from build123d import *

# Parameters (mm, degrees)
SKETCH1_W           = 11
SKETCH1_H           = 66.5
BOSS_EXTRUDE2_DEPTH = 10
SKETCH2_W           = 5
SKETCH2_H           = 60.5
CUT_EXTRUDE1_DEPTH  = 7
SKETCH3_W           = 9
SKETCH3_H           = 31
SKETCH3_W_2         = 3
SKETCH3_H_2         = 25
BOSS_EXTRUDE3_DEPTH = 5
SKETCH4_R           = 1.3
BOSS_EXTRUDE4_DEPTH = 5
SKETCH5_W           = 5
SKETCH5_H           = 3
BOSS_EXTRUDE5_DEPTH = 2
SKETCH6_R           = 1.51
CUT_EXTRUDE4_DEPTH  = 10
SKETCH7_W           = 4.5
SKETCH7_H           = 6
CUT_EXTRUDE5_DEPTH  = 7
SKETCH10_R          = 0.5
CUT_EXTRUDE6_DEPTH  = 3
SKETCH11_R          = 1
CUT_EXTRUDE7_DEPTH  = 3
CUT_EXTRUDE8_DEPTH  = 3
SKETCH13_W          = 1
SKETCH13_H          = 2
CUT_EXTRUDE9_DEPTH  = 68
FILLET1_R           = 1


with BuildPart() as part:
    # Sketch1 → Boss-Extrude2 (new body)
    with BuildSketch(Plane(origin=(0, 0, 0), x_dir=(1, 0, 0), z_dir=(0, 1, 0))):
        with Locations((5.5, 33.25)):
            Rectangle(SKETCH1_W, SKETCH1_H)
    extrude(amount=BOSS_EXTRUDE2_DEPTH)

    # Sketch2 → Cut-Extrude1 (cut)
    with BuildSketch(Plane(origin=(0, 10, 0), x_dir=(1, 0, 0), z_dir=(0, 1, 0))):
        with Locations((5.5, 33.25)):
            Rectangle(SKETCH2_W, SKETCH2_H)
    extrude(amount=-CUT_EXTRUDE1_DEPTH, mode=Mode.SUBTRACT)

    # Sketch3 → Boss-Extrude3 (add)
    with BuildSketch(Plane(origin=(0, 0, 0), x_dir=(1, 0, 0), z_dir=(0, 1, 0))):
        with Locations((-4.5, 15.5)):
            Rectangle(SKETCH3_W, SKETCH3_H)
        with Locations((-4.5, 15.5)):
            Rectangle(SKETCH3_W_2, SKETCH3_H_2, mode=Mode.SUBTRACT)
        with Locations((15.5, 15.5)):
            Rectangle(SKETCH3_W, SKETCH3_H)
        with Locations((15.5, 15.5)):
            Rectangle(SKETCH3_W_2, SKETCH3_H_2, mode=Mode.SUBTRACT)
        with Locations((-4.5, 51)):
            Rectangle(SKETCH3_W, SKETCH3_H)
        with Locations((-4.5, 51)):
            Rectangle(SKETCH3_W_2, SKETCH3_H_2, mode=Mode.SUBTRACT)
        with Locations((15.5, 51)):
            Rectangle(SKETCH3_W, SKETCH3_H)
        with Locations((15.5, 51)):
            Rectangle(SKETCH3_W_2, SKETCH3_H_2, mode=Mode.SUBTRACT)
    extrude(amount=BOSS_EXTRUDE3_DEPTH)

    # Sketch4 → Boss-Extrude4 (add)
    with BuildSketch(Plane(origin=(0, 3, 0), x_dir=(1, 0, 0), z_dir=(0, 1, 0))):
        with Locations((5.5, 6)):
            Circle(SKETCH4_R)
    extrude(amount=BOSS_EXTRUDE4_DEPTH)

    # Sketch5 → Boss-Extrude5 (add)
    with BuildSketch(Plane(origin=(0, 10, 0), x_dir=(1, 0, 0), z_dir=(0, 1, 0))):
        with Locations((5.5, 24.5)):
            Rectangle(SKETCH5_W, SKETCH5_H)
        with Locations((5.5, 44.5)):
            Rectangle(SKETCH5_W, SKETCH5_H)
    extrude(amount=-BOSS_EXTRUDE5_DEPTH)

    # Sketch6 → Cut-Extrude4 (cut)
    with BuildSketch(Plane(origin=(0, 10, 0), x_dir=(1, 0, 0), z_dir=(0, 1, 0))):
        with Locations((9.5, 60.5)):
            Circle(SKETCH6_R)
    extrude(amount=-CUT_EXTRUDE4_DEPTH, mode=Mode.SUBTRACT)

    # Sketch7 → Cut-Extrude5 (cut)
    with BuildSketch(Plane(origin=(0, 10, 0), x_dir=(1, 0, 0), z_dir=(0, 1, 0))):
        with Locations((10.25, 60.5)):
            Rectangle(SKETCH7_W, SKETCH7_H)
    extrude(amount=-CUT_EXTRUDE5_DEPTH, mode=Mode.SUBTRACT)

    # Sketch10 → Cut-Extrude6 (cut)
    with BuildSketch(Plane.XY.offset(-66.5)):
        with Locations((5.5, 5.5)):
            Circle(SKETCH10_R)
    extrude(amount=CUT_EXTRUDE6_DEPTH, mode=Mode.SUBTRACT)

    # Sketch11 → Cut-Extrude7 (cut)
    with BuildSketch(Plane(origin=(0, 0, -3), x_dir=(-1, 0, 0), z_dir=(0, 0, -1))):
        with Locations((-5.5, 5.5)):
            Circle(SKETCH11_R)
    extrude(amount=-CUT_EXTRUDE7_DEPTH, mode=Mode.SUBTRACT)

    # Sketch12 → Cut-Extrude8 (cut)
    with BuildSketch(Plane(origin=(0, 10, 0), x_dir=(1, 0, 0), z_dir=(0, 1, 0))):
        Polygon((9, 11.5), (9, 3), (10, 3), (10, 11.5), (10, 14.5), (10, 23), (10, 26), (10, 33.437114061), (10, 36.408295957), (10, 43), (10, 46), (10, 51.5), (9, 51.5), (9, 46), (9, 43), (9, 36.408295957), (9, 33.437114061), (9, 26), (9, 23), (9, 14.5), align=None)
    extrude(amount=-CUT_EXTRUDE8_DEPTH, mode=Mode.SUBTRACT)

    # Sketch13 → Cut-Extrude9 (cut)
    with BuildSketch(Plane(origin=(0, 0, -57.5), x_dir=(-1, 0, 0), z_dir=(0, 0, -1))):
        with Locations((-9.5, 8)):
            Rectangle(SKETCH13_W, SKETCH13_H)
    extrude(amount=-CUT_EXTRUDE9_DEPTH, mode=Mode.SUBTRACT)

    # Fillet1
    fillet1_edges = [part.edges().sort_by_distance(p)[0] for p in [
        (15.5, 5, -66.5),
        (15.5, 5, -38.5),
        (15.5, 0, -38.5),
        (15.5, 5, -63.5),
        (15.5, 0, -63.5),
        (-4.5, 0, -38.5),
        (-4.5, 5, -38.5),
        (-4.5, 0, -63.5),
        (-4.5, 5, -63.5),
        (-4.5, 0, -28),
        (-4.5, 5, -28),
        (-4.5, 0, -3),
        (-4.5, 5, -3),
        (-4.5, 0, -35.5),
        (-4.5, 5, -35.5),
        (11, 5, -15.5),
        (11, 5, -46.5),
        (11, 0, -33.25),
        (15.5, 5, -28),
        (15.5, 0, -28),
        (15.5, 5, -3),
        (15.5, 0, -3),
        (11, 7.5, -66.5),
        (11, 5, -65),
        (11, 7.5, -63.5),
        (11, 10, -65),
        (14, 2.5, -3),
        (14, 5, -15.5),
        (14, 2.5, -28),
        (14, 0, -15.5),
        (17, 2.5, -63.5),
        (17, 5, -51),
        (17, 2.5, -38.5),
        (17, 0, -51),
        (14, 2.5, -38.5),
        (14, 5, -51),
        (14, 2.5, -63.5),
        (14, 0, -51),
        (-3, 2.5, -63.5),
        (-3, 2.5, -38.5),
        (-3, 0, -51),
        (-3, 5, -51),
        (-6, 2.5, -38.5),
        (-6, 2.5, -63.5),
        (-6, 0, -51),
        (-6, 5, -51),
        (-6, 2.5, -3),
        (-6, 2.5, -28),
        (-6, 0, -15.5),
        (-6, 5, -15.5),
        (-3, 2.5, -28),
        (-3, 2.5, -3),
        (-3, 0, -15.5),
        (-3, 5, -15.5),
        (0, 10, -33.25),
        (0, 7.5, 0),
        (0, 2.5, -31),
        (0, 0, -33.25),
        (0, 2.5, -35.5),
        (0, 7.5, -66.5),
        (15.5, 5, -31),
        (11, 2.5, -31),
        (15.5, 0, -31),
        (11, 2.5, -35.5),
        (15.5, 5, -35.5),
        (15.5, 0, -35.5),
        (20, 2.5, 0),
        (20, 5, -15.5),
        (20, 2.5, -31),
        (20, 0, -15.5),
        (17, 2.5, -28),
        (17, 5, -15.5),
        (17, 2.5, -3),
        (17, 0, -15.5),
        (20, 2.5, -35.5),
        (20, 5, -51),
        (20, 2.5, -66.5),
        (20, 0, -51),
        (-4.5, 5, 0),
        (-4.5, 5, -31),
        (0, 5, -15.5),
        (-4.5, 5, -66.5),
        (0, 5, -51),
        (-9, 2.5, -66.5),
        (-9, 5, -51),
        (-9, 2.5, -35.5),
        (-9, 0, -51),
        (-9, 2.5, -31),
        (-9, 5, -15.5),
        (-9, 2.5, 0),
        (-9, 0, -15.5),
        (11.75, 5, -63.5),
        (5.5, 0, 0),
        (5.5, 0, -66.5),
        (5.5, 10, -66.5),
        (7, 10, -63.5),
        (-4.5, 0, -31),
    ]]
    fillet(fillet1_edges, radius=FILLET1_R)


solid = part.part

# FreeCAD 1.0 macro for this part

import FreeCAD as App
import Part
import Sketcher

V = App.Vector


def edges_at(feature, points):
    """Names of the edges that pass closest to the given points."""
    edges = feature.Shape.Edges
    near = lambda p: min(range(len(edges)), key=lambda i: edges[i].distToShape(Part.Vertex(*p))[0])
    return sorted({f"Edge{near(p) + 1}" for p in points})

doc = App.newDocument("Part")
body = doc.addObject("PartDesign::Body", "Body")

# Sketch on XZ plane
sketch1 = doc.addObject("Sketcher::SketchObject", "Sketch")
body.addObject(sketch1)
sketch1.AttachmentSupport = (doc.XZ_Plane, [""])
sketch1.MapMode = "FlatFace"
sketch1.addGeometry([
    Part.LineSegment(V(0, -66, 0), V(0, 0, 0)),
    Part.LineSegment(V(0, 0, 0), V(11, 0, 0)),
    Part.LineSegment(V(11, 0, 0), V(11, -66, 0)),
    Part.LineSegment(V(11, -66, 0), V(0, -66, 0)),
], False)
sketch1.addConstraint([
    Sketcher.Constraint("Coincident", 0, 2, 1, 1),
    Sketcher.Constraint("Coincident", 1, 2, 2, 1),
    Sketcher.Constraint("Coincident", 2, 2, 3, 1),
    Sketcher.Constraint("Coincident", 3, 2, 0, 1),
    Sketcher.Constraint("Vertical", 0),
    Sketcher.Constraint("Horizontal", 1),
    Sketcher.Constraint("Vertical", 2),
    Sketcher.Constraint("Horizontal", 3),
    Sketcher.Constraint("Coincident", 0, 2, -1, 1),
    Sketcher.Constraint("DistanceX", 1, 1, 1, 2, 11.0),
    Sketcher.Constraint("DistanceY", 0, 1, 0, 2, 66.5),
])
pad1 = doc.addObject("PartDesign::Pad", "Pad")
body.addObject(pad1)
pad1.Profile = sketch1
pad1.Length = 10
pad1.Reversed = True

# Sketch on XZ plane
sketch2 = doc.addObject("Sketcher::SketchObject", "Sketch001")
body.addObject(sketch2)
sketch2.AttachmentSupport = (doc.XZ_Plane, [""])
sketch2.MapMode = "FlatFace"
sketch2.AttachmentOffset = App.Placement(V(0, 0, -10), App.Rotation())
sketch2.addGeometry([
    Part.LineSegment(V(3, -64, 0), V(3, -3, 0)),
    Part.LineSegment(V(3, -3, 0), V(8, -3, 0)),
    Part.LineSegment(V(8, -3, 0), V(8, -64, 0)),
    Part.LineSegment(V(8, -64, 0), V(3, -64, 0)),
], False)
sketch2.addConstraint([
    Sketcher.Constraint("Coincident", 0, 2, 1, 1),
    Sketcher.Constraint("Coincident", 1, 2, 2, 1),
    Sketcher.Constraint("Coincident", 2, 2, 3, 1),
    Sketcher.Constraint("Coincident", 3, 2, 0, 1),
    Sketcher.Constraint("Vertical", 0),
    Sketcher.Constraint("Horizontal", 1),
    Sketcher.Constraint("Vertical", 2),
    Sketcher.Constraint("Horizontal", 3),
    Sketcher.Constraint("DistanceX", 1, 1, 1, 2, 5.0),
    Sketcher.Constraint("DistanceY", 0, 1, 0, 2, 60.5),
    Sketcher.Constraint("DistanceX", -1, 1, 0, 2, 3.0),
    Sketcher.Constraint("DistanceY", 0, 2, -1, 1, 3.0),
])
pocket1 = doc.addObject("PartDesign::Pocket", "Pocket")
body.addObject(pocket1)
pocket1.Profile = sketch2
pocket1.Length = 7
pocket1.Reversed = True

# Sketch on XZ plane
sketch3 = doc.addObject("Sketcher::SketchObject", "Sketch002")
body.addObject(sketch3)
sketch3.AttachmentSupport = (doc.XZ_Plane, [""])
sketch3.MapMode = "FlatFace"
sketch3.addGeometry([
    Part.LineSegment(V(-9, -31, 0), V(-9, 0, 0)),  # 0
    Part.LineSegment(V(-9, 0, 0), V(0, 0, 0)),  # 1
    Part.LineSegment(V(0, 0, 0), V(0, -31, 0)),  # 2
    Part.LineSegment(V(0, -31, 0), V(-9, -31, 0)),  # 3
    Part.LineSegment(V(-3, -3, 0), V(-6, -3, 0)),  # 4
    Part.LineSegment(V(-6, -3, 0), V(-6, -28, 0)),  # 5
    Part.LineSegment(V(-6, -28, 0), V(-3, -28, 0)),  # 6
    Part.LineSegment(V(-3, -28, 0), V(-3, -3, 0)),  # 7
    Part.LineSegment(V(11, -31, 0), V(11, 0, 0)),  # 8
    Part.LineSegment(V(11, 0, 0), V(20, 0, 0)),  # 9
    Part.LineSegment(V(20, 0, 0), V(20, -31, 0)),  # 10
    Part.LineSegment(V(20, -31, 0), V(11, -31, 0)),  # 11
    Part.LineSegment(V(17, -3, 0), V(14, -3, 0)),  # 12
    Part.LineSegment(V(14, -3, 0), V(14, -28, 0)),  # 13
    Part.LineSegment(V(14, -28, 0), V(17, -28, 0)),  # 14
    Part.LineSegment(V(17, -28, 0), V(17, -3, 0)),  # 15
    Part.LineSegment(V(-9, -66.5, 0), V(-9, -35.5, 0)),  # 16
    Part.LineSegment(V(-9, -35.5, 0), V(0, -35.5, 0)),  # 17
    Part.LineSegment(V(0, -35.5, 0), V(0, -66.5, 0)),  # 18
    Part.LineSegment(V(0, -66.5, 0), V(-9, -66.5, 0)),  # 19
    Part.LineSegment(V(-3, -38.5, 0), V(-6, -38.5, 0)),  # 20
    Part.LineSegment(V(-6, -38.5, 0), V(-6, -63.5, 0)),  # 21
    Part.LineSegment(V(-6, -63.5, 0), V(-3, -63.5, 0)),  # 22
    Part.LineSegment(V(-3, -63.5, 0), V(-3, -38.5, 0)),  # 23
    Part.LineSegment(V(11, -66.5, 0), V(11, -35.5, 0)),  # 24
    Part.LineSegment(V(11, -35.5, 0), V(20, -35.5, 0)),  # 25
    Part.LineSegment(V(20, -35.5, 0), V(20, -66.5, 0)),  # 26
    Part.LineSegment(V(20, -66.5, 0), V(11, -66.5, 0)),  # 27
    Part.LineSegment(V(17, -38.5, 0), V(14, -38.5, 0)),  # 28
    Part.LineSegment(V(14, -38.5, 0), V(14, -63.5, 0)),  # 29
    Part.LineSegment(V(14, -63.5, 0), V(17, -63.5, 0)),  # 30
    Part.LineSegment(V(17, -63.5, 0), V(17, -38.5, 0)),  # 31
], False)
sketch3.addConstraint([
    Sketcher.Constraint("Coincident", 0, 2, 1, 1),
    Sketcher.Constraint("Coincident", 1, 2, 2, 1),
    Sketcher.Constraint("Coincident", 2, 2, 3, 1),
    Sketcher.Constraint("Coincident", 3, 2, 0, 1),
    Sketcher.Constraint("Coincident", 4, 2, 5, 1),
    Sketcher.Constraint("Coincident", 5, 2, 6, 1),
    Sketcher.Constraint("Coincident", 6, 2, 7, 1),
    Sketcher.Constraint("Coincident", 7, 2, 4, 1),
    Sketcher.Constraint("Coincident", 8, 2, 9, 1),
    Sketcher.Constraint("Coincident", 9, 2, 10, 1),
    Sketcher.Constraint("Coincident", 10, 2, 11, 1),
    Sketcher.Constraint("Coincident", 11, 2, 8, 1),
    Sketcher.Constraint("Coincident", 12, 2, 13, 1),
    Sketcher.Constraint("Coincident", 13, 2, 14, 1),
    Sketcher.Constraint("Coincident", 14, 2, 15, 1),
    Sketcher.Constraint("Coincident", 15, 2, 12, 1),
    Sketcher.Constraint("Coincident", 16, 2, 17, 1),
    Sketcher.Constraint("Coincident", 17, 2, 18, 1),
    Sketcher.Constraint("Coincident", 18, 2, 19, 1),
    Sketcher.Constraint("Coincident", 19, 2, 16, 1),
    Sketcher.Constraint("Coincident", 20, 2, 21, 1),
    Sketcher.Constraint("Coincident", 21, 2, 22, 1),
    Sketcher.Constraint("Coincident", 22, 2, 23, 1),
    Sketcher.Constraint("Coincident", 23, 2, 20, 1),
    Sketcher.Constraint("Coincident", 24, 2, 25, 1),
    Sketcher.Constraint("Coincident", 25, 2, 26, 1),
    Sketcher.Constraint("Coincident", 26, 2, 27, 1),
    Sketcher.Constraint("Coincident", 27, 2, 24, 1),
    Sketcher.Constraint("Coincident", 28, 2, 29, 1),
    Sketcher.Constraint("Coincident", 29, 2, 30, 1),
    Sketcher.Constraint("Coincident", 30, 2, 31, 1),
    Sketcher.Constraint("Coincident", 31, 2, 28, 1),
    Sketcher.Constraint("Vertical", 0),
    Sketcher.Constraint("Horizontal", 1),
    Sketcher.Constraint("Vertical", 2),
    Sketcher.Constraint("Horizontal", 3),
    Sketcher.Constraint("Horizontal", 4),
    Sketcher.Constraint("Vertical", 5),
    Sketcher.Constraint("Horizontal", 6),
    Sketcher.Constraint("Vertical", 7),
    Sketcher.Constraint("Vertical", 8),
    Sketcher.Constraint("Horizontal", 9),
    Sketcher.Constraint("Vertical", 10),
    Sketcher.Constraint("Horizontal", 11),
    Sketcher.Constraint("Horizontal", 12),
    Sketcher.Constraint("Vertical", 13),
    Sketcher.Constraint("Horizontal", 14),
    Sketcher.Constraint("Vertical", 15),
    Sketcher.Constraint("Vertical", 16),
    Sketcher.Constraint("Horizontal", 17),
    Sketcher.Constraint("Vertical", 18),
    Sketcher.Constraint("Horizontal", 19),
    Sketcher.Constraint("Horizontal", 20),
    Sketcher.Constraint("Vertical", 21),
    Sketcher.Constraint("Horizontal", 22),
    Sketcher.Constraint("Vertical", 23),
    Sketcher.Constraint("Vertical", 24),
    Sketcher.Constraint("Horizontal", 25),
    Sketcher.Constraint("Vertical", 26),
    Sketcher.Constraint("Horizontal", 27),
    Sketcher.Constraint("Horizontal", 28),
    Sketcher.Constraint("Vertical", 29),
    Sketcher.Constraint("Horizontal", 30),
    Sketcher.Constraint("Vertical", 31),
    Sketcher.Constraint("Coincident", 1, 2, -1, 1),
    Sketcher.Constraint("PointOnObject", 8, 2, -1),
    Sketcher.Constraint("PointOnObject", 17, 2, -2),
    Sketcher.Constraint("Horizontal", 3, 2, 10, 2),
    Sketcher.Constraint("Horizontal", 7, 2, 12, 2),
    Sketcher.Constraint("Horizontal", 6, 2, 13, 2),
    Sketcher.Constraint("Horizontal", 17, 2, 24, 2),
    Sketcher.Constraint("Horizontal", 19, 2, 26, 2),
    Sketcher.Constraint("Horizontal", 23, 2, 28, 2),
    Sketcher.Constraint("Horizontal", 22, 2, 29, 2),
    Sketcher.Constraint("Vertical", 3, 2, 16, 2),
    Sketcher.Constraint("Vertical", 5, 2, 20, 2),
    Sketcher.Constraint("Vertical", 7, 2, 22, 2),
    Sketcher.Constraint("Vertical", 11, 2, 24, 2),
    Sketcher.Constraint("Vertical", 10, 2, 25, 2),
    Sketcher.Constraint("Vertical", 13, 2, 28, 2),
    Sketcher.Constraint("Vertical", 15, 2, 30, 2),
    Sketcher.Constraint("Equal", 3, 9),
    Sketcher.Constraint("Equal", 6, 12),
    Sketcher.Constraint("Equal", 10, 16),
    Sketcher.Constraint("Equal", 15, 21),
    Sketcher.Constraint("DistanceX", 1, 1, 1, 2, 9.0),
    Sketcher.Constraint("DistanceX", 4, 2, 4, 1, 3.0),
    Sketcher.Constraint("DistanceY", 0, 1, 0, 2, 31.0),
    Sketcher.Constraint("DistanceY", 5, 2, 5, 1, 25.0),
    Sketcher.Constraint("DistanceX", 4, 2, -1, 1, 6.0),
    Sketcher.Constraint("DistanceY", 4, 2, -1, 1, 3.0),
    Sketcher.Constraint("DistanceX", -1, 1, 8, 2, 11.0),
    Sketcher.Constraint("DistanceX", -1, 1, 12, 2, 14.0),
    Sketcher.Constraint("DistanceY", 20, 2, 16, 2, 3.0),
    Sketcher.Constraint("DistanceY", 16, 2, -1, 1, 35.5),
])
pad2 = doc.addObject("PartDesign::Pad", "Pad001")
body.addObject(pad2)
pad2.Profile = sketch3
pad2.Length = 5
pad2.Reversed = True

# Sketch on XZ plane
sketch4 = doc.addObject("Sketcher::SketchObject", "Sketch003")
body.addObject(sketch4)
sketch4.AttachmentSupport = (doc.XZ_Plane, [""])
sketch4.MapMode = "FlatFace"
sketch4.AttachmentOffset = App.Placement(V(0, 0, -3), App.Rotation())
sketch4.addGeometry(Part.Circle(V(5.5, -6, 0), V(0, 0, 1), 1.3), False)
sketch4.addConstraint([
    Sketcher.Constraint("Diameter", 0, 2.6),
    Sketcher.Constraint("DistanceY", 0, 3, -1, 1, 6.0),
    Sketcher.Constraint("DistanceX", -1, 1, 0, 3, 5.5),
])
pad3 = doc.addObject("PartDesign::Pad", "Pad002")
body.addObject(pad3)
pad3.Profile = sketch4
pad3.Length = 5
pad3.Reversed = True

# Sketch on XZ plane
sketch5 = doc.addObject("Sketcher::SketchObject", "Sketch004")
body.addObject(sketch5)
sketch5.AttachmentSupport = (doc.XZ_Plane, [""])
sketch5.MapMode = "FlatFace"
sketch5.AttachmentOffset = App.Placement(V(0, 0, -10), App.Rotation())
sketch5.addGeometry([
    Part.LineSegment(V(3, -26, 0), V(3, -23, 0)),  # 0
    Part.LineSegment(V(3, -23, 0), V(8, -23, 0)),  # 1
    Part.LineSegment(V(8, -23, 0), V(8, -26, 0)),  # 2
    Part.LineSegment(V(8, -26, 0), V(3, -26, 0)),  # 3
    Part.LineSegment(V(3, -46, 0), V(3, -43, 0)),  # 4
    Part.LineSegment(V(3, -43, 0), V(8, -43, 0)),  # 5
    Part.LineSegment(V(8, -43, 0), V(8, -46, 0)),  # 6
    Part.LineSegment(V(8, -46, 0), V(3, -46, 0)),  # 7
], False)
sketch5.addConstraint([
    Sketcher.Constraint("Coincident", 0, 2, 1, 1),
    Sketcher.Constraint("Coincident", 1, 2, 2, 1),
    Sketcher.Constraint("Coincident", 2, 2, 3, 1),
    Sketcher.Constraint("Coincident", 3, 2, 0, 1),
    Sketcher.Constraint("Coincident", 4, 2, 5, 1),
    Sketcher.Constraint("Coincident", 5, 2, 6, 1),
    Sketcher.Constraint("Coincident", 6, 2, 7, 1),
    Sketcher.Constraint("Coincident", 7, 2, 4, 1),
    Sketcher.Constraint("Vertical", 0),
    Sketcher.Constraint("Horizontal", 1),
    Sketcher.Constraint("Vertical", 2),
    Sketcher.Constraint("Horizontal", 3),
    Sketcher.Constraint("Vertical", 4),
    Sketcher.Constraint("Horizontal", 5),
    Sketcher.Constraint("Vertical", 6),
    Sketcher.Constraint("Horizontal", 7),
    Sketcher.Constraint("Vertical", 3, 2, 4, 2),
    Sketcher.Constraint("Vertical", 2, 2, 5, 2),
    Sketcher.Constraint("Equal", 2, 4),
    Sketcher.Constraint("DistanceX", 1, 1, 1, 2, 5.0),
    Sketcher.Constraint("DistanceY", 0, 1, 0, 2, 3.0),
    Sketcher.Constraint("DistanceX", -1, 1, 0, 2, 3.0),
    Sketcher.Constraint("DistanceY", 0, 2, -1, 1, 23.0),
    Sketcher.Constraint("DistanceY", 4, 2, -1, 1, 43.0),
])
pad4 = doc.addObject("PartDesign::Pad", "Pad003")
body.addObject(pad4)
pad4.Profile = sketch5
pad4.Length = 2

# Sketch on XZ plane
sketch6 = doc.addObject("Sketcher::SketchObject", "Sketch005")
body.addObject(sketch6)
sketch6.AttachmentSupport = (doc.XZ_Plane, [""])
sketch6.MapMode = "FlatFace"
sketch6.AttachmentOffset = App.Placement(V(0, 0, -10), App.Rotation())
sketch6.addGeometry(Part.Circle(V(9.5, -60.5, 0), V(0, 0, 1), 1.5), False)
sketch6.addConstraint([
    Sketcher.Constraint("Diameter", 0, 3.02),
    Sketcher.Constraint("DistanceX", -1, 1, 0, 3, 9.5),
    Sketcher.Constraint("DistanceY", 0, 3, -1, 1, 60.5),
])
pocket2 = doc.addObject("PartDesign::Pocket", "Pocket001")
body.addObject(pocket2)
pocket2.Profile = sketch6
pocket2.Length = 10
pocket2.Reversed = True

# Sketch on XZ plane
sketch7 = doc.addObject("Sketcher::SketchObject", "Sketch006")
body.addObject(sketch7)
sketch7.AttachmentSupport = (doc.XZ_Plane, [""])
sketch7.MapMode = "FlatFace"
sketch7.AttachmentOffset = App.Placement(V(0, 0, -10), App.Rotation())
sketch7.addGeometry([
    Part.LineSegment(V(8, -63.5, 0), V(8, -57.5, 0)),
    Part.LineSegment(V(8, -57.5, 0), V(12.5, -57.5, 0)),
    Part.LineSegment(V(12.5, -57.5, 0), V(12.5, -63.5, 0)),
    Part.LineSegment(V(12.5, -63.5, 0), V(8, -63.5, 0)),
], False)
sketch7.addConstraint([
    Sketcher.Constraint("Coincident", 0, 2, 1, 1),
    Sketcher.Constraint("Coincident", 1, 2, 2, 1),
    Sketcher.Constraint("Coincident", 2, 2, 3, 1),
    Sketcher.Constraint("Coincident", 3, 2, 0, 1),
    Sketcher.Constraint("Vertical", 0),
    Sketcher.Constraint("Horizontal", 1),
    Sketcher.Constraint("Vertical", 2),
    Sketcher.Constraint("Horizontal", 3),
    Sketcher.Constraint("DistanceY", 0, 1, 0, 2, 6.0),
    Sketcher.Constraint("DistanceX", 1, 1, 1, 2, 4.5),
    Sketcher.Constraint("DistanceX", -1, 1, 0, 2, 8.0),
    Sketcher.Constraint("DistanceY", 0, 2, -1, 1, 57.5),
])
pocket3 = doc.addObject("PartDesign::Pocket", "Pocket002")
body.addObject(pocket3)
pocket3.Profile = sketch7
pocket3.Length = 7
pocket3.Reversed = True

# Sketch on XY plane
sketch8 = doc.addObject("Sketcher::SketchObject", "Sketch007")
body.addObject(sketch8)
sketch8.AttachmentSupport = (doc.XY_Plane, [""])
sketch8.MapMode = "FlatFace"
sketch8.AttachmentOffset = App.Placement(V(0, 0, -66.5), App.Rotation())
sketch8.addGeometry(Part.Circle(V(5.5, 5.5, 0), V(0, 0, 1), 0.5), False)
sketch8.addConstraint([
    Sketcher.Constraint("Diameter", 0, 1.0),
    Sketcher.Constraint("DistanceX", -1, 1, 0, 3, 5.5),
    Sketcher.Constraint("DistanceY", -1, 1, 0, 3, 5.5),
])
pocket4 = doc.addObject("PartDesign::Pocket", "Pocket003")
body.addObject(pocket4)
pocket4.Profile = sketch8
pocket4.Length = 3
pocket4.Reversed = True

# Sketch on XY plane
sketch9 = doc.addObject("Sketcher::SketchObject", "Sketch008")
body.addObject(sketch9)
sketch9.AttachmentSupport = (doc.XY_Plane, [""])
sketch9.MapMode = "FlatFace"
sketch9.AttachmentOffset = App.Placement(V(0, 0, -3), App.Rotation())
sketch9.addGeometry(Part.Circle(V(5.5, 5.5, 0), V(0, 0, 1), 1), False)
sketch9.addConstraint([
    Sketcher.Constraint("Diameter", 0, 2.0),
    Sketcher.Constraint("DistanceX", -1, 1, 0, 3, 5.5),
    Sketcher.Constraint("DistanceY", -1, 1, 0, 3, 5.5),
])
pocket5 = doc.addObject("PartDesign::Pocket", "Pocket004")
body.addObject(pocket5)
pocket5.Profile = sketch9
pocket5.Length = 3
pocket5.Reversed = True

# Sketch on XZ plane
sketch10 = doc.addObject("Sketcher::SketchObject", "Sketch009")
body.addObject(sketch10)
sketch10.AttachmentSupport = (doc.XZ_Plane, [""])
sketch10.MapMode = "FlatFace"
sketch10.AttachmentOffset = App.Placement(V(0, 0, -10), App.Rotation())
sketch10.addGeometry([
    Part.LineSegment(V(9, -3, 0), V(10, -3, 0)),
    Part.LineSegment(V(10, -3, 0), V(10, -51.5, 0)),
    Part.LineSegment(V(10, -51.5, 0), V(9, -51.5, 0)),
    Part.LineSegment(V(9, -51.5, 0), V(9, -3, 0)),
], False)
sketch10.addConstraint([
    Sketcher.Constraint("Coincident", 0, 2, 1, 1),
    Sketcher.Constraint("Coincident", 1, 2, 2, 1),
    Sketcher.Constraint("Coincident", 2, 2, 3, 1),
    Sketcher.Constraint("Coincident", 3, 2, 0, 1),
    Sketcher.Constraint("Horizontal", 0),
    Sketcher.Constraint("Vertical", 1),
    Sketcher.Constraint("Horizontal", 2),
    Sketcher.Constraint("Vertical", 3),
    Sketcher.Constraint("DistanceX", 0, 1, 0, 2, 1.0),
    Sketcher.Constraint("DistanceY", 1, 2, 1, 1, 48.5),
    Sketcher.Constraint("DistanceX", -1, 1, 0, 2, 10.0),
    Sketcher.Constraint("DistanceY", 0, 2, -1, 1, 3.0),
])
pocket6 = doc.addObject("PartDesign::Pocket", "Pocket005")
body.addObject(pocket6)
pocket6.Profile = sketch10
pocket6.Length = 3
pocket6.Reversed = True

# Sketch on XY plane
sketch11 = doc.addObject("Sketcher::SketchObject", "Sketch010")
body.addObject(sketch11)
sketch11.AttachmentSupport = (doc.XY_Plane, [""])
sketch11.MapMode = "FlatFace"
sketch11.AttachmentOffset = App.Placement(V(0, 0, -57.5), App.Rotation())
sketch11.addGeometry([
    Part.LineSegment(V(10, 9, 0), V(10, 7, 0)),
    Part.LineSegment(V(10, 7, 0), V(9, 7, 0)),
    Part.LineSegment(V(9, 7, 0), V(9, 9, 0)),
    Part.LineSegment(V(9, 9, 0), V(10, 9, 0)),
], False)
sketch11.addConstraint([
    Sketcher.Constraint("Coincident", 0, 2, 1, 1),
    Sketcher.Constraint("Coincident", 1, 2, 2, 1),
    Sketcher.Constraint("Coincident", 2, 2, 3, 1),
    Sketcher.Constraint("Coincident", 3, 2, 0, 1),
    Sketcher.Constraint("Vertical", 0),
    Sketcher.Constraint("Horizontal", 1),
    Sketcher.Constraint("Vertical", 2),
    Sketcher.Constraint("Horizontal", 3),
    Sketcher.Constraint("DistanceX", 1, 2, 1, 1, 1.0),
    Sketcher.Constraint("DistanceY", 0, 2, 0, 1, 2.0),
    Sketcher.Constraint("DistanceX", -1, 1, 0, 2, 10.0),
    Sketcher.Constraint("DistanceY", -1, 1, 0, 2, 7.0),
])
pocket7 = doc.addObject("PartDesign::Pocket", "Pocket006")
body.addObject(pocket7)
pocket7.Profile = sketch11
pocket7.Length = 68
pocket7.Reversed = True
doc.recompute()

fillet = doc.addObject("PartDesign::Fillet", "Fillet")
body.addObject(fillet)
fillet.Base = (pocket7, edges_at(pocket7, [
    (15.5, 5, -66.5),
    (15.5, 5, -38.5),
    (15.5, 0, -38.5),
    (15.5, 5, -63.5),
    (15.5, 0, -63.5),
    (-4.5, 0, -38.5),
    (-4.5, 5, -38.5),
    (-4.5, 0, -63.5),
    (-4.5, 5, -63.5),
    (-4.5, 0, -28),
    (-4.5, 5, -28),
    (-4.5, 0, -3),
    (-4.5, 5, -3),
    (-4.5, 0, -35.5),
    (-4.5, 5, -35.5),
    (11, 5, -15.5),
    (11, 5, -46.5),
    (11, 0, -33.25),
    (15.5, 5, -28),
    (15.5, 0, -28),
    (15.5, 5, -3),
    (15.5, 0, -3),
    (11, 7.5, -66.5),
    (11, 5, -65),
    (11, 7.5, -63.5),
    (11, 10, -65),
    (14, 2.5, -3),
    (14, 5, -15.5),
    (14, 2.5, -28),
    (14, 0, -15.5),
    (17, 2.5, -63.5),
    (17, 5, -51),
    (17, 2.5, -38.5),
    (17, 0, -51),
    (14, 2.5, -38.5),
    (14, 5, -51),
    (14, 2.5, -63.5),
    (14, 0, -51),
    (-3, 2.5, -63.5),
    (-3, 2.5, -38.5),
    (-3, 0, -51),
    (-3, 5, -51),
    (-6, 2.5, -38.5),
    (-6, 2.5, -63.5),
    (-6, 0, -51),
    (-6, 5, -51),
    (-6, 2.5, -3),
    (-6, 2.5, -28),
    (-6, 0, -15.5),
    (-6, 5, -15.5),
    (-3, 2.5, -28),
    (-3, 2.5, -3),
    (-3, 0, -15.5),
    (-3, 5, -15.5),
    (0, 10, -33.25),
    (0, 7.5, 0),
    (0, 2.5, -31),
    (0, 0, -33.25),
    (0, 2.5, -35.5),
    (0, 7.5, -66.5),
    (15.5, 5, -31),
    (11, 2.5, -31),
    (15.5, 0, -31),
    (11, 2.5, -35.5),
    (15.5, 5, -35.5),
    (15.5, 0, -35.5),
    (20, 2.5, 0),
    (20, 5, -15.5),
    (20, 2.5, -31),
    (20, 0, -15.5),
    (17, 2.5, -28),
    (17, 5, -15.5),
    (17, 2.5, -3),
    (17, 0, -15.5),
    (20, 2.5, -35.5),
    (20, 5, -51),
    (20, 2.5, -66.5),
    (20, 0, -51),
    (-4.5, 5, 0),
    (-4.5, 5, -31),
    (0, 5, -15.5),
    (-4.5, 5, -66.5),
    (0, 5, -51),
    (-9, 2.5, -66.5),
    (-9, 5, -51),
    (-9, 2.5, -35.5),
    (-9, 0, -51),
    (-9, 2.5, -31),
    (-9, 5, -15.5),
    (-9, 2.5, 0),
    (-9, 0, -15.5),
    (11.75, 5, -63.5),
    (5.5, 0, 0),
    (5.5, 0, -66.5),
    (5.5, 10, -66.5),
    (7, 10, -63.5),
    (-4.5, 0, -31),
]))
fillet.Radius = 1

doc.recompute()
